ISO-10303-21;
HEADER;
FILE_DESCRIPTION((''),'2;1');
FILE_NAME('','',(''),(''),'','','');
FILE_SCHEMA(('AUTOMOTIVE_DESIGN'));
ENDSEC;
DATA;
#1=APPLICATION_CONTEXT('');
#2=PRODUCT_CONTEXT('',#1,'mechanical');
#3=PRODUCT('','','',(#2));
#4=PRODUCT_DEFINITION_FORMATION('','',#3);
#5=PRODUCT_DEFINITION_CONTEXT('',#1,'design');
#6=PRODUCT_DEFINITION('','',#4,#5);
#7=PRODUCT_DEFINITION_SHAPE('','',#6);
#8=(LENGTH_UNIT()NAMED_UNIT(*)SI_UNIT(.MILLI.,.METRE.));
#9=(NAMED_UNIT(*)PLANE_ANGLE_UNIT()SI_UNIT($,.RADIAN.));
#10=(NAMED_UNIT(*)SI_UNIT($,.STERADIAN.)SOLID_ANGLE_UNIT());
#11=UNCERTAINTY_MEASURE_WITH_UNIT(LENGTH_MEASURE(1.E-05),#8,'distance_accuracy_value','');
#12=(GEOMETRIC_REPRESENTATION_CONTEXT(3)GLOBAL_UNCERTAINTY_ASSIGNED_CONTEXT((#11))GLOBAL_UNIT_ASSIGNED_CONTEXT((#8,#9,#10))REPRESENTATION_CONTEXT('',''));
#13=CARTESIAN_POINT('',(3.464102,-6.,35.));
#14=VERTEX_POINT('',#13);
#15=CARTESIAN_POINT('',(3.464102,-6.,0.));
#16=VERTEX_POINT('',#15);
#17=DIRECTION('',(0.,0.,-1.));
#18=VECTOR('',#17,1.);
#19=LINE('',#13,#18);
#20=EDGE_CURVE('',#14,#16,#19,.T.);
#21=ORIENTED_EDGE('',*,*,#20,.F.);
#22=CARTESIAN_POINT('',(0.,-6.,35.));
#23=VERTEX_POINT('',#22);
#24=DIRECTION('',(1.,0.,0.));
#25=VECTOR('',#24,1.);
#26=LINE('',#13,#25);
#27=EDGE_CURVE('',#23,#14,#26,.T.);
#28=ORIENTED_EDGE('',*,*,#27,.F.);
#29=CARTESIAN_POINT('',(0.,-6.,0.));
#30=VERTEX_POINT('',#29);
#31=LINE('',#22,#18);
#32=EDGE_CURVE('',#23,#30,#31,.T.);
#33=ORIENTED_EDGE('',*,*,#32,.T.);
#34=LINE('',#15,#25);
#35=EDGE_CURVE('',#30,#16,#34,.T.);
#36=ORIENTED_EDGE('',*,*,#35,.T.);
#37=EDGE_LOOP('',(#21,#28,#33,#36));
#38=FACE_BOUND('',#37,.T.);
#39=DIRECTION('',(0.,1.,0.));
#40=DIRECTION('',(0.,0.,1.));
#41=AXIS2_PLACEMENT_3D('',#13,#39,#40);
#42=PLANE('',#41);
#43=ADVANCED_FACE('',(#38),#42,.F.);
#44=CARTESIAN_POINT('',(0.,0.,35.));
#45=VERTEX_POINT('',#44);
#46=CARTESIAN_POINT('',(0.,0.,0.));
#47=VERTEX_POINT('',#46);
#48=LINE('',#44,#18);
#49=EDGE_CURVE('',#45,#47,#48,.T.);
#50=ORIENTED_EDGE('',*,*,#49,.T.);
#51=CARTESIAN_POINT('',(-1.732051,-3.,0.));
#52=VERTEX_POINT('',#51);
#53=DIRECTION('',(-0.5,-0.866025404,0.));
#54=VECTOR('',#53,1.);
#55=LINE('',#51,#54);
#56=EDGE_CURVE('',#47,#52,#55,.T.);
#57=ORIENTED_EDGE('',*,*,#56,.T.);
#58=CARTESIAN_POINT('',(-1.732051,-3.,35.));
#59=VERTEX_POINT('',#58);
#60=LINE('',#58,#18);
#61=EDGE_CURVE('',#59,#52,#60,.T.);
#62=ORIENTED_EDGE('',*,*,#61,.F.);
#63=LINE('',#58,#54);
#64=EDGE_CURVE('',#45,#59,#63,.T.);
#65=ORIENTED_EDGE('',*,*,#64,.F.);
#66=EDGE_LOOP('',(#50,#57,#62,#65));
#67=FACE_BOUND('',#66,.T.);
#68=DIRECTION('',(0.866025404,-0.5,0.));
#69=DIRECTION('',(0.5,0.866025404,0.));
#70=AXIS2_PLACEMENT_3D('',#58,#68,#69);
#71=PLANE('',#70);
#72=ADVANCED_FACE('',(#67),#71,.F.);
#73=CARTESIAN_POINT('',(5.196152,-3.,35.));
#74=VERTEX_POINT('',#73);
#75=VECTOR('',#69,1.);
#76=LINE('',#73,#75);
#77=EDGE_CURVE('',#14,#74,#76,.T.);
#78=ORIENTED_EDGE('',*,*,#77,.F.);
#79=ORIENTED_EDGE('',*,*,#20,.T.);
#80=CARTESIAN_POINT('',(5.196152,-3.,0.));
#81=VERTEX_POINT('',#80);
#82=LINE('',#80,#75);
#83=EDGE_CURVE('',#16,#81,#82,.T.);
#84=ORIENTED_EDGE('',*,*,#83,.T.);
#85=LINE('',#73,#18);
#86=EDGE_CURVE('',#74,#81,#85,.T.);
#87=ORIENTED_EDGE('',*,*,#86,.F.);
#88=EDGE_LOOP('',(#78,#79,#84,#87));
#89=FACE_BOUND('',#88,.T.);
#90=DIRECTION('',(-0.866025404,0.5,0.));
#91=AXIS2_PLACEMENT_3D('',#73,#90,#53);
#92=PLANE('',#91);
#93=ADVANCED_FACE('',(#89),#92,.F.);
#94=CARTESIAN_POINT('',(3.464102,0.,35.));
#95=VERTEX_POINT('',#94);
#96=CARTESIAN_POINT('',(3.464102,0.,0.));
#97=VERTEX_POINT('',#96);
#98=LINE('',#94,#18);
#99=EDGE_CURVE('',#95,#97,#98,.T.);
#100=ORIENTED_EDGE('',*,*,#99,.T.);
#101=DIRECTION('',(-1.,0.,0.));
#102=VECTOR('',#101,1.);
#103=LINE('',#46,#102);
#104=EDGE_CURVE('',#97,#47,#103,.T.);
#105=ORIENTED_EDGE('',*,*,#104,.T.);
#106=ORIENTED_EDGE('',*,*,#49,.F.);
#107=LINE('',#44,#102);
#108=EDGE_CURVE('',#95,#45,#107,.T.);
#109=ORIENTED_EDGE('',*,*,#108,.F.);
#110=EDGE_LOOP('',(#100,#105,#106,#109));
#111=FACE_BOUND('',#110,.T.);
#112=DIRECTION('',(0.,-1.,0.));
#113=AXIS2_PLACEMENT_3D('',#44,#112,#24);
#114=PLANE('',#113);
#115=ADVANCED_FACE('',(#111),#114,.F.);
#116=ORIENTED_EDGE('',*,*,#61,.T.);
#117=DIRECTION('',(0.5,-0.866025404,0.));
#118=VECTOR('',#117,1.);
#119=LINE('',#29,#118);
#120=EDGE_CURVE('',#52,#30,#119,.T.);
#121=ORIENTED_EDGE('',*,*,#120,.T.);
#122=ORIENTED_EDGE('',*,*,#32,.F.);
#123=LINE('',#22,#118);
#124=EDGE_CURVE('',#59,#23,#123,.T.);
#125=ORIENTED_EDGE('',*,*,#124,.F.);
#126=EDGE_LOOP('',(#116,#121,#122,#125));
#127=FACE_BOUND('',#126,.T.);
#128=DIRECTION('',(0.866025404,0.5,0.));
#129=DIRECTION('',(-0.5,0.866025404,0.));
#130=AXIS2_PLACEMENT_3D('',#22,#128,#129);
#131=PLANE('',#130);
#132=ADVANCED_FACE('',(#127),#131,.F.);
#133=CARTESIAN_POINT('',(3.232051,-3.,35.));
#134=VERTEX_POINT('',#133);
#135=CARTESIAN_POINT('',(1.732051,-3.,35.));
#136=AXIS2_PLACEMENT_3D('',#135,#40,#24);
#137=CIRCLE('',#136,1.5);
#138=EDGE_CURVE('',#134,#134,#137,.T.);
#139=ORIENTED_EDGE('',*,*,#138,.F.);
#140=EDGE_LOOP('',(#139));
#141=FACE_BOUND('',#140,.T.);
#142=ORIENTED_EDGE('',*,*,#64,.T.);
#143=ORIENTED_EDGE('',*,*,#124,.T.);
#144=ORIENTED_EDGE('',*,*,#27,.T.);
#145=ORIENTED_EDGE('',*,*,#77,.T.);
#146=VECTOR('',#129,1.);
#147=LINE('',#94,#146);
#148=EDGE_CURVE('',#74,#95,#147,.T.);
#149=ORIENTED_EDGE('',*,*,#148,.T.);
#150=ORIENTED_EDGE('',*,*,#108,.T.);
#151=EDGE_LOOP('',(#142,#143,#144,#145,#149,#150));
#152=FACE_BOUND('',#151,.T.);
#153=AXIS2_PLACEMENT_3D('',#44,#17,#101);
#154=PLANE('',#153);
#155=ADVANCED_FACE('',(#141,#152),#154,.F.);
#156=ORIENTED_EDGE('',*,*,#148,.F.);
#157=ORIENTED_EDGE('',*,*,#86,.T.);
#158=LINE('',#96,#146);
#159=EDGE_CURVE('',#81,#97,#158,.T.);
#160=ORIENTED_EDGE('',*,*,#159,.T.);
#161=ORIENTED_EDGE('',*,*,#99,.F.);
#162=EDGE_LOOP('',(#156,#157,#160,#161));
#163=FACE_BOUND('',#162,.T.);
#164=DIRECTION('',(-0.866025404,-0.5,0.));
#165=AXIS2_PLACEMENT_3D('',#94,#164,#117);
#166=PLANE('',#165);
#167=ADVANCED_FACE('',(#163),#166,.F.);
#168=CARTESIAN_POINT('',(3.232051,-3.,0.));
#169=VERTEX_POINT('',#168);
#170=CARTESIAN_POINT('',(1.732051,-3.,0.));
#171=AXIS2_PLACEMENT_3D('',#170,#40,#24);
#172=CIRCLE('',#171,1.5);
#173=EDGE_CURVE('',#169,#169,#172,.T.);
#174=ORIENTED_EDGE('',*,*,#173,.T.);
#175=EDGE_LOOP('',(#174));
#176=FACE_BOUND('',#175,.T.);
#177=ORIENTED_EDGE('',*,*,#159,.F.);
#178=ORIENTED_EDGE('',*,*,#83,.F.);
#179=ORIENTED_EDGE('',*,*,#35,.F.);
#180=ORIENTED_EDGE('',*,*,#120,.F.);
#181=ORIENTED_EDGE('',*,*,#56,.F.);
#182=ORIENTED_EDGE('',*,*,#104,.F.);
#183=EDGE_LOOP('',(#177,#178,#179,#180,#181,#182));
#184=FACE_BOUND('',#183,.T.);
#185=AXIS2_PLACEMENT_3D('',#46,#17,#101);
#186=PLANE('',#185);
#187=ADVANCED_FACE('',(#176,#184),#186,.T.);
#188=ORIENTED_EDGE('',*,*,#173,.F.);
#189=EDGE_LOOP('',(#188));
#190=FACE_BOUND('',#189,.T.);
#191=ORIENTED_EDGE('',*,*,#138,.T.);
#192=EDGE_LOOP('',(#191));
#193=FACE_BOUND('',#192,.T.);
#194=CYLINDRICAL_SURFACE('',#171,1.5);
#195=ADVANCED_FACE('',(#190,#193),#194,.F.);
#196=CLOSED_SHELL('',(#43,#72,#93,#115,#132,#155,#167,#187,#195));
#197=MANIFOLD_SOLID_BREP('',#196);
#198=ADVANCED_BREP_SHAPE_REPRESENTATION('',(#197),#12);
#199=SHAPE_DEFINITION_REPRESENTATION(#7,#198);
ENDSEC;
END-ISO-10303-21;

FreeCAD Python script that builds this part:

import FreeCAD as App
import Part
import Sketcher
from FreeCAD import Vector
Q = App.Units.Quantity

doc = App.newDocument("Part")
params = doc.addObject("Spreadsheet::Sheet", "Params")
for row, (alias, value) in enumerate([
    ("pad1_length", "35 mm"),
    ("sketch2_diameter", "3 mm"),
], start=1):
    params.set(f"A{row}", alias)
    params.set(f"B{row}", "=" + value)
    params.setAlias(f"B{row}", alias)

body = doc.addObject("PartDesign::Body", "Body")

# Sketch on XY plane
sketch1 = doc.addObject("Sketcher::SketchObject", "Sketch")
body.addObject(sketch1)
sketch1.AttachmentSupport = (doc.XY_Plane, [""])
sketch1.MapMode = "FlatFace"
sketch1.addGeometry([
    Part.LineSegment(Vector(3.5, 0, 0), Vector(0, 0, 0)),  # 0
    Part.LineSegment(Vector(0, 0, 0), Vector(-1.7, -3, 0)),  # 1
    Part.LineSegment(Vector(-1.7, -3, 0), Vector(0, -6, 0)),  # 2
    Part.LineSegment(Vector(0, -6, 0), Vector(3.5, -6, 0)),  # 3
    Part.LineSegment(Vector(3.5, -6, 0), Vector(5.2, -3, 0)),  # 4
    Part.LineSegment(Vector(5.2, -3, 0), Vector(3.5, 0, 0)),  # 5
], False)
sketch1.addConstraint([
    Sketcher.Constraint("Coincident", 0, 2, 1, 1),
    Sketcher.Constraint("Coincident", 1, 2, 2, 1),
    Sketcher.Constraint("Coincident", 2, 2, 3, 1),
    Sketcher.Constraint("Coincident", 3, 2, 4, 1),
    Sketcher.Constraint("Coincident", 4, 2, 5, 1),
    Sketcher.Constraint("Coincident", 5, 2, 0, 1),
    Sketcher.Constraint("Horizontal", 0),
    Sketcher.Constraint("Horizontal", 3),
    Sketcher.Constraint("Coincident", 0, 2, -1, 1),
    Sketcher.Constraint("PointOnObject", 2, 2, -2),
    Sketcher.Constraint("Parallel", 1, 4),
    Sketcher.Constraint("Parallel", 2, 5),
    Sketcher.Constraint("Horizontal", 1, 2, 4, 2),
    Sketcher.Constraint("Vertical", 3, 2, 5, 2),
    Sketcher.Constraint("Angle", 1, Q("-120 deg")),
    Sketcher.Constraint("DistanceY", 1, 2, -1, 1, 3.0),
    Sketcher.Constraint("DistanceX", 0, 2, 0, 1, 3.464102),
])
pad1 = doc.addObject("PartDesign::Pad", "Pad")
body.addObject(pad1)
pad1.Profile = sketch1
pad1.setExpression("Length", "Params.pad1_length")

# Sketch on XY plane
sketch2 = doc.addObject("Sketcher::SketchObject", "Sketch001")
body.addObject(sketch2)
sketch2.AttachmentSupport = (doc.XY_Plane, [""])
sketch2.MapMode = "FlatFace"
sketch2.AttachmentOffset = App.Placement(Vector(0, 0, 35), App.Rotation())
sketch2.addGeometry(Part.Circle(Vector(1.7, -3, 0), Vector(0, 0, 1), 1.5), False)
sketch2.addConstraint([
    Sketcher.Constraint("Diameter", 0, 3.0),
    Sketcher.Constraint("DistanceY", 0, 3, -1, 1, 3.0),
    Sketcher.Constraint("DistanceX", -1, 1, 0, 3, 1.732051),
])
sketch2.setExpression("Constraints[0]", "Params.sketch2_diameter")
pocket1 = doc.addObject("PartDesign::Pocket", "Pocket")
body.addObject(pocket1)
pocket1.Profile = sketch2
pocket1.Type = "ThroughAll"

doc.recompute()
